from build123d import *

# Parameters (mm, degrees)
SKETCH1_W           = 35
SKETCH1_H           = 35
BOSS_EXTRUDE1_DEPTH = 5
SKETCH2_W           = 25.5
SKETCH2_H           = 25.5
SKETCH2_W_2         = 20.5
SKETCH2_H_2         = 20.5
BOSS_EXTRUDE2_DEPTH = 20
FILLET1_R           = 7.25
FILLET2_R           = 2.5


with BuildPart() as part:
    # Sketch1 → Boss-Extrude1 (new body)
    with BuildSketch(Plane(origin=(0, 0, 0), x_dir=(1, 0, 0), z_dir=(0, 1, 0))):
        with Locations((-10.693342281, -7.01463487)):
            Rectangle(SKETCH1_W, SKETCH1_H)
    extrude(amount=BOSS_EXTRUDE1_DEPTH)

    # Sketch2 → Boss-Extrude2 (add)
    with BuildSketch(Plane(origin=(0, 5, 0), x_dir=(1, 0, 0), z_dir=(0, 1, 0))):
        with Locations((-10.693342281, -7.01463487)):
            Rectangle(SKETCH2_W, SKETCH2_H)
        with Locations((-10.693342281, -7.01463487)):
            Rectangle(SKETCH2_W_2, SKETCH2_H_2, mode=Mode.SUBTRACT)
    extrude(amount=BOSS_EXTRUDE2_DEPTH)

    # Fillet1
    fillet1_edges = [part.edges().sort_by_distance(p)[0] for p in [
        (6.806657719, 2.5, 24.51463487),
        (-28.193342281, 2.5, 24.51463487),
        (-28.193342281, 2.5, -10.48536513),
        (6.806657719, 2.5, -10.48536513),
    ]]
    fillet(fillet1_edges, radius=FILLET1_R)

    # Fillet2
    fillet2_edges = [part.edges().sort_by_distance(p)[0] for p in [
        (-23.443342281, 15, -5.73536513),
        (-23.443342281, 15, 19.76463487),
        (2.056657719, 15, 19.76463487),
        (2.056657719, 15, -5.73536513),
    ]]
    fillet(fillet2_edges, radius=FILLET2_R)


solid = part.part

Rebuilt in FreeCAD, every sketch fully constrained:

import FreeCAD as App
import Part
import Sketcher
from FreeCAD import Vector
Q = App.Units.Quantity


def edges_at(feature, points):
    """Names of the edges that pass closest to the given points."""
    edges = feature.Shape.Edges
    near = lambda p: min(range(len(edges)), key=lambda i: edges[i].distToShape(Part.Vertex(*p))[0])
    return sorted({f"Edge{near(p) + 1}" for p in points})


def add_polygon(sketch, points):
    """Adds a closed chain of lines whose ends are joined by coincident constraints."""
    first, n = sketch.GeometryCount, len(points)
    for a, b in zip(points, points[1:] + points[:1]):
        sketch.addGeometry(Part.LineSegment(App.Vector(*a, 0), App.Vector(*b, 0)), False)
    for i in range(n):
        sketch.addConstraint(Sketcher.Constraint("Coincident", first + i, 2, first + (i + 1) % n, 1))

doc = App.newDocument("Part")
body = doc.addObject("PartDesign::Body", "Body")

# Sketch on XZ plane
sketch1 = body.newObject("Sketcher::SketchObject", "Sketch")
sketch1.AttachmentSupport = (doc.getObject("XZ_Plane"), [""])
sketch1.MapMode = "FlatFace"
add_polygon(sketch1, [(-28, -10), (-28, 25), (7, 25), (7, -10)])  # lines 0-3
sketch1.addConstraint([
    Sketcher.Constraint("Vertical", 0),
    Sketcher.Constraint("Horizontal", 1),
    Sketcher.Constraint("Vertical", 2),
    Sketcher.Constraint("Horizontal", 3),
    Sketcher.Constraint("Equal", 3, 0),
    Sketcher.Constraint("DistanceX", 1, 1, 1, 2, Q("35 mm")),
    Sketcher.Constraint("DistanceX", 0, 2, -1, 1, Q("28.193342 mm")),
    Sketcher.Constraint("DistanceY", -1, 1, 0, 2, Q("24.514635 mm")),
])
pad1 = body.newObject("PartDesign::Pad", "Pad")
pad1.Profile = sketch1
pad1.Length = 5
pad1.Reversed = True

# Sketch on XZ plane
sketch2 = body.newObject("Sketcher::SketchObject", "Sketch001")
sketch2.AttachmentSupport = (doc.getObject("XZ_Plane"), [""])
sketch2.MapMode = "FlatFace"
sketch2.AttachmentOffset = App.Placement(Vector(0, 0, -5), App.Rotation())
add_polygon(sketch2, [(-23, -6), (-23, 20), (2, 20), (2, -6)])  # lines 0-3
add_polygon(sketch2, [(0, 17), (-21, 17), (-21, -3), (0, -3)])  # lines 4-7
sketch2.addConstraint([
    Sketcher.Constraint("Vertical", 0),
    Sketcher.Constraint("Horizontal", 1),
    Sketcher.Constraint("Vertical", 2),
    Sketcher.Constraint("Horizontal", 3),
    Sketcher.Constraint("Horizontal", 4),
    Sketcher.Constraint("Vertical", 5),
    Sketcher.Constraint("Horizontal", 6),
    Sketcher.Constraint("Vertical", 7),
    Sketcher.Constraint("Equal", 3, 0),
    Sketcher.Constraint("Equal", 6, 5),
    Sketcher.Constraint("DistanceX", 1, 1, 1, 2, Q("25.5 mm")),
    Sketcher.Constraint("DistanceX", 4, 2, 4, 1, Q("20.5 mm")),
    Sketcher.Constraint("DistanceX", 4, 2, 1, 2, Q("23 mm")),
    Sketcher.Constraint("DistanceY", 3, 2, 4, 2, Q("23 mm")),
    Sketcher.Constraint("DistanceX", 0, 2, -1, 1, Q("23.443342 mm")),
    Sketcher.Constraint("DistanceY", -1, 1, 0, 2, Q("19.764635 mm")),
])
pad2 = body.newObject("PartDesign::Pad", "Pad001")
pad2.Profile = sketch2
pad2.Length = 20
pad2.Reversed = True
doc.recompute()

fillet = body.newObject("PartDesign::Fillet", "Fillet")
fillet.Base = (pad2, edges_at(pad2, [
    (6.807, 2.5, 24.515),
    (-28.193, 2.5, 24.515),
    (-28.193, 2.5, -10.485),
    (6.807, 2.5, -10.485),
]))
fillet.Radius = 7.25
doc.recompute()

fillet2 = body.newObject("PartDesign::Fillet", "Fillet001")
fillet2.Base = (fillet, edges_at(fillet, [
    (-23.443, 15, -5.735),
    (-23.443, 15, 19.765),
    (2.057, 15, 19.765),
    (2.057, 15, -5.735),
]))
fillet2.Radius = 2.5

doc.recompute()
